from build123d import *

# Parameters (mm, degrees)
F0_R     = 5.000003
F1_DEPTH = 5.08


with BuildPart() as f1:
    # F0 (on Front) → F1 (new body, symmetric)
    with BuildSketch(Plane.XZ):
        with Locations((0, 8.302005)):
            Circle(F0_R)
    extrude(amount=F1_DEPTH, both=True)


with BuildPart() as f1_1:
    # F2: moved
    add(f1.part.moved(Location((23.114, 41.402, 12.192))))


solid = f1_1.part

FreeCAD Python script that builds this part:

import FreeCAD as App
import Part
import Sketcher

V = App.Vector

doc = App.newDocument("Part")
params = doc.addObject("Spreadsheet::Sheet", "Params")
for row, (alias, value) in enumerate([
    ("pad1_length", "0.4 in"),
], start=1):
    params.set(f"A{row}", alias)
    params.set(f"B{row}", "=" + value)
    params.setAlias(f"B{row}", alias)

body = doc.addObject("PartDesign::Body", "Body")

sketch1 = body.newObject("Sketcher::SketchObject", "Sketch")
sketch1.AttachmentSupport = (doc.getObject("XZ_Plane"), [""])
sketch1.MapMode = "FlatFace"
sketch1.addGeometry(Part.Circle(V(0, 8, 0), V(0, 0, 1), 5), False)
sketch1.addConstraint([
    Sketcher.Constraint("PointOnObject", 0, 3, -2),
    Sketcher.Constraint("Diameter", 0, 10.000006),
    Sketcher.Constraint("DistanceY", -1, 1, 0, 3, 8.302005),
])
pad1 = body.newObject("PartDesign::Pad", "Pad")
pad1.Profile = sketch1
pad1.setExpression("Length", "Params.pad1_length")
pad1.Midplane = True
body2 = doc.addObject("PartDesign::Body", "Body001")
doc.recompute()

body.Placement = App.Placement(V(23.114, 41.402, 12.192), App.Rotation(V(0, 0, 1), 0))
boolean = body2.newObject("PartDesign::Boolean", "Boolean")
boolean.Type = "Fuse"
boolean.addObjects([body])

doc.recompute()
